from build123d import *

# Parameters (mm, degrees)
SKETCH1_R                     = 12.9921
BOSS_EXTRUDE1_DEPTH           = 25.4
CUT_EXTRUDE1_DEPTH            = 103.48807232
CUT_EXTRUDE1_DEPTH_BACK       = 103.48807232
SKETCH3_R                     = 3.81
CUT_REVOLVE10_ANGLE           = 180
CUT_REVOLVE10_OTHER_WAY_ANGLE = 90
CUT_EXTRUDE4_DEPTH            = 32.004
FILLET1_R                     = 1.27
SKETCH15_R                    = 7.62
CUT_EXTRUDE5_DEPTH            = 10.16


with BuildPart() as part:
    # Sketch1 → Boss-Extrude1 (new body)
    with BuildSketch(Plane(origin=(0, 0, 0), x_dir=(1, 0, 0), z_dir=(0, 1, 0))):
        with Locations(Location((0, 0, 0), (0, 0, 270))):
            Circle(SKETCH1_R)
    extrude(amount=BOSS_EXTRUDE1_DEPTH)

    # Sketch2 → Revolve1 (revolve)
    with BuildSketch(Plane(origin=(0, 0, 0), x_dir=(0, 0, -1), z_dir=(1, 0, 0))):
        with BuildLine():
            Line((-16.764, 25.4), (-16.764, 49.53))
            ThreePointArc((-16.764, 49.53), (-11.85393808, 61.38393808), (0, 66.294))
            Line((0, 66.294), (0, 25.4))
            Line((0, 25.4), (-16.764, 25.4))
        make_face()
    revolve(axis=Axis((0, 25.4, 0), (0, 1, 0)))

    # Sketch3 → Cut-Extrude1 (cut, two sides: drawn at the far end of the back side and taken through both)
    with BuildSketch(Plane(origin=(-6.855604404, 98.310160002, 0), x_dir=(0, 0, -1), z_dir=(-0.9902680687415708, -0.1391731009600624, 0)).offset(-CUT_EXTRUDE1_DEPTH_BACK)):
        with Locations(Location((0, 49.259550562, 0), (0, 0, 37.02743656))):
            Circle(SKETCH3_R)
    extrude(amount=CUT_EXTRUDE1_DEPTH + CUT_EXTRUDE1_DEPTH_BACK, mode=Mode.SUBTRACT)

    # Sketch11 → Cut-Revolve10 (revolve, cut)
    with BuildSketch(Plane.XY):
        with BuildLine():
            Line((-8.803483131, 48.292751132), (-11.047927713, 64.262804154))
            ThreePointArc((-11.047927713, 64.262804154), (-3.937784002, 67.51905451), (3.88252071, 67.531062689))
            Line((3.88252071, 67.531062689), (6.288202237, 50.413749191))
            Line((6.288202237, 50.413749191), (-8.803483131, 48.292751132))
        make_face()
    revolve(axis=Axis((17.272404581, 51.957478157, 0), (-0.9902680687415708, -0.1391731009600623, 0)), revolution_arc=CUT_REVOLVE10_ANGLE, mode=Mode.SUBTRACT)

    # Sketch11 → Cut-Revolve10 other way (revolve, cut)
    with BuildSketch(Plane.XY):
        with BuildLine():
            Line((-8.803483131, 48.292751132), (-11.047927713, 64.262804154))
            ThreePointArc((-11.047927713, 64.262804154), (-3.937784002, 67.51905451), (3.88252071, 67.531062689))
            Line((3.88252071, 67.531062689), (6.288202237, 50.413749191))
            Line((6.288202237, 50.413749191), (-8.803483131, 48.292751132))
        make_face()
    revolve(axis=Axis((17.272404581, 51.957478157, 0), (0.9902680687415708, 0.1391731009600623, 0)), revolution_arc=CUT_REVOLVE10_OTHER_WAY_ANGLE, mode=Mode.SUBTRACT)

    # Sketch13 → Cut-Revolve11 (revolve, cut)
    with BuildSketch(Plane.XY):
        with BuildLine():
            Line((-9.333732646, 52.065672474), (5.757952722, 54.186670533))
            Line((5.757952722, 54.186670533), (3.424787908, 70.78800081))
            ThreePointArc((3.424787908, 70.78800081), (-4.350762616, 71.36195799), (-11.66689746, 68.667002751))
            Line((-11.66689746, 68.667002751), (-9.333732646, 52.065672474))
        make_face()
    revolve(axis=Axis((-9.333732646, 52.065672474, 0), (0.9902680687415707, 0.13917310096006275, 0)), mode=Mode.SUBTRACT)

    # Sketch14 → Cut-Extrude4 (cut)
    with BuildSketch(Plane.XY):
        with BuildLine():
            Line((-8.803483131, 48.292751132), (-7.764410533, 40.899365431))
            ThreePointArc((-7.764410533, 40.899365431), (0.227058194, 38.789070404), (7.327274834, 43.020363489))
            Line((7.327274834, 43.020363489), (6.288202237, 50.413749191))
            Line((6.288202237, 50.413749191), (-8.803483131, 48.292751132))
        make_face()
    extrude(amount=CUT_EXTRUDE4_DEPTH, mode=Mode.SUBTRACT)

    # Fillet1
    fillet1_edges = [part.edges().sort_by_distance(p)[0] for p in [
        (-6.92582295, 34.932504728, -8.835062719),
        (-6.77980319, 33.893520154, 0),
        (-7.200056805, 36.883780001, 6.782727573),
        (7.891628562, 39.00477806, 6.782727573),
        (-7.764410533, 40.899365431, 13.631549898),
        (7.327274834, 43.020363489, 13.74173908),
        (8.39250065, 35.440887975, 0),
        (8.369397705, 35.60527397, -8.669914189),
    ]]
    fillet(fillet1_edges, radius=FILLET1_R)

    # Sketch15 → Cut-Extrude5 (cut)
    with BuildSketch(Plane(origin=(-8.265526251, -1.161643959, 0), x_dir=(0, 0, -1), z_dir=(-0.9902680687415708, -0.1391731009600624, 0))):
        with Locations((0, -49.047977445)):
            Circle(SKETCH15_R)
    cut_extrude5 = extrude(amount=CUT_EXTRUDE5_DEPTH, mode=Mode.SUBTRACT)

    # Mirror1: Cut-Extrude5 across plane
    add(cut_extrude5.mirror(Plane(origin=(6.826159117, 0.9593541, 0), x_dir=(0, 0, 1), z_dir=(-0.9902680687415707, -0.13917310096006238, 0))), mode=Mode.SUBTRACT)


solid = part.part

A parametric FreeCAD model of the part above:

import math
import FreeCAD as App
import Part
import Sketcher
from FreeCAD import Vector
Q = App.Units.Quantity


def edges_at(feature, points):
    """Names of the edges that pass closest to the given points."""
    edges = feature.Shape.Edges
    near = lambda p: min(range(len(edges)), key=lambda i: edges[i].distToShape(Part.Vertex(*p))[0])
    return sorted({f"Edge{near(p) + 1}" for p in points})

doc = App.newDocument("Part")
body = doc.addObject("PartDesign::Body", "Body")

# Sketch on XZ plane
sketch1 = body.newObject("Sketcher::SketchObject", "Sketch")
sketch1.AttachmentSupport = (doc.getObject("XZ_Plane"), [""])
sketch1.MapMode = "FlatFace"
sketch1.addGeometry(Part.Circle(Vector(0, 0, 0), Vector(0, 0, 1), 13), False)
sketch1.addConstraint([
    Sketcher.Constraint("Coincident", 0, 3, -1, 1),
    Sketcher.Constraint("Diameter", 0, Q("1.023 in")),
])
pad1 = body.newObject("PartDesign::Pad", "Pad")
pad1.Profile = sketch1
pad1.Length = Q("1 in")
pad1.Reversed = True

# Sketch on YZ plane
sketch2 = body.newObject("Sketcher::SketchObject", "Sketch001")
sketch2.AttachmentSupport = (doc.getObject("YZ_Plane"), [""])
sketch2.MapMode = "FlatFace"
sketch2.addGeometry([
    Part.LineSegment(Vector(50, 17, 0), Vector(25, 17, 0)),
    Part.LineSegment(Vector(25, 17, 0), Vector(25, 0, 0)),
    Part.LineSegment(Vector(25, 0, 0), Vector(66, 0, 0)),
    Part.ArcOfCircle(Part.Circle(Vector(50, 0, 0), Vector(0, 0, 1), 17), math.radians(0), math.radians(90)),
], False)
sketch2.addConstraint([
    Sketcher.Constraint("Coincident", 0, 2, 1, 1),
    Sketcher.Constraint("Coincident", 1, 2, 2, 1),
    Sketcher.Constraint("Coincident", 2, 2, 3, 1),
    Sketcher.Constraint("Tangent", 3, 2, 0, 1),
    Sketcher.Constraint("Horizontal", 0),
    Sketcher.Constraint("Vertical", 1),
    Sketcher.Constraint("Horizontal", 2),
    Sketcher.Constraint("PointOnObject", 3, 3, -1),
    Sketcher.Constraint("PointOnObject", 1, 2, -1),
    Sketcher.Constraint("Radius", 3, Q("0.66 in")),
    Sketcher.Constraint("DistanceX", -1, 1, 0, 2, Q("1 in")),
    Sketcher.Constraint("DistanceX", 0, 2, 0, 1, Q("0.95 in")),
])
revolution = body.newObject("PartDesign::Revolution", "Revolution")
revolution.Profile = sketch2
revolution.ReferenceAxis = (sketch2, ["H_Axis"])
revolution.Angle = 360

# Sketch on an angled plane
sketch3 = body.newObject("Sketcher::SketchObject", "Sketch002")
sketch3.Placement = App.Placement(Vector(-6.855604, 98.31016, 0), App.Rotation(Vector(0, 0, -1), Vector(0.139173101, -0.990268069, 0), Vector(-0.990268069, -0.139173101, 0), "ZXY"))
sketch3.addGeometry(Part.Circle(Vector(0, 49.3, 0), Vector(0, 0, 1), 3.8), False)
sketch3.addConstraint([
    Sketcher.Constraint("PointOnObject", 0, 3, -2),
    Sketcher.Constraint("Diameter", 0, Q("0.3 in")),
    Sketcher.Constraint("DistanceY", -1, 1, 0, 3, 49.259551),
])
pocket1 = body.newObject("PartDesign::Pocket", "Pocket")
pocket1.Profile = sketch3
pocket1.Type = "ThroughAll"
pocket1.Midplane = True

# Sketch on XY plane
sketch4 = body.newObject("Sketcher::SketchObject", "Sketch003")
sketch4.AttachmentSupport = (doc.getObject("XY_Plane"), [""])
sketch4.MapMode = "FlatFace"
sketch4.addGeometry([
    Part.LineSegment(Vector(-11, 64, 0), Vector(-9, 48, 0)),
    Part.LineSegment(Vector(-9, 48, 0), Vector(6, 50, 0)),
    Part.LineSegment(Vector(6, 50, 0), Vector(4, 68, 0)),
    Part.ArcOfCircle(Part.Circle(Vector(0, 50, 0), Vector(0, 0, 1), 18), math.radians(78), math.radians(127)),
], False)
sketch4.addGeometry(Part.LineSegment(Vector(6, 50, 0), Vector(-9, 48, 0)), True)  # axis
sketch4.addConstraint([
    Sketcher.Constraint("Coincident", 0, 2, 1, 1),
    Sketcher.Constraint("Coincident", 1, 2, 2, 1),
    Sketcher.Constraint("Coincident", 2, 2, 3, 1),
    Sketcher.Constraint("Coincident", 3, 2, 0, 1),
    Sketcher.Constraint("Coincident", 4, 1, 1, 2),
    Sketcher.Constraint("Coincident", 4, 2, 0, 2),
    Sketcher.Constraint("PointOnObject", 3, 3, -2),
    Sketcher.Constraint("Perpendicular", 0, 1),
    Sketcher.Constraint("Perpendicular", 1, 2),
    Sketcher.Constraint("Angle", 0, Q("-82 deg")),
    Sketcher.Constraint("Radius", 3, Q("0.725 in")),
    Sketcher.Constraint("Distance", 1, Q("0.6 in")),
    Sketcher.Constraint("DistanceY", -1, 1, 3, 3, Q("1.95 in")),
    Sketcher.Constraint("Distance", 0, 16.127),
    Sketcher.Constraint("DistanceY", -1, 1, 0, 2, 48.292751),
])
groove = body.newObject("PartDesign::Groove", "Groove")
groove.Profile = sketch4
groove.ReferenceAxis = (sketch4, ["Axis0"])
groove.Angle = 180

# Sketch on XY plane
sketch5 = body.newObject("Sketcher::SketchObject", "Sketch004")
sketch5.AttachmentSupport = (doc.getObject("XY_Plane"), [""])
sketch5.MapMode = "FlatFace"
sketch5.addGeometry([
    Part.LineSegment(Vector(-11, 64, 0), Vector(-9, 48, 0)),
    Part.LineSegment(Vector(-9, 48, 0), Vector(6, 50, 0)),
    Part.LineSegment(Vector(6, 50, 0), Vector(4, 68, 0)),
    Part.ArcOfCircle(Part.Circle(Vector(0, 50, 0), Vector(0, 0, 1), 18), math.radians(78), math.radians(127)),
], False)
sketch5.addGeometry(Part.LineSegment(Vector(-9, 48, 0), Vector(6, 50, 0)), True)  # axis
sketch5.addConstraint([
    Sketcher.Constraint("Coincident", 0, 2, 1, 1),
    Sketcher.Constraint("Coincident", 1, 2, 2, 1),
    Sketcher.Constraint("Coincident", 2, 2, 3, 1),
    Sketcher.Constraint("Coincident", 3, 2, 0, 1),
    Sketcher.Constraint("Coincident", 4, 1, 0, 2),
    Sketcher.Constraint("Coincident", 4, 2, 1, 2),
    Sketcher.Constraint("PointOnObject", 3, 3, -2),
    Sketcher.Constraint("Perpendicular", 0, 1),
    Sketcher.Constraint("Perpendicular", 1, 2),
    Sketcher.Constraint("Angle", 0, Q("-82 deg")),
    Sketcher.Constraint("Radius", 3, Q("0.725 in")),
    Sketcher.Constraint("Distance", 1, Q("0.6 in")),
    Sketcher.Constraint("DistanceY", -1, 1, 3, 3, Q("1.95 in")),
    Sketcher.Constraint("Distance", 0, 16.127),
    Sketcher.Constraint("DistanceY", -1, 1, 0, 2, 48.292751),
])
groove2 = body.newObject("PartDesign::Groove", "Groove001")
groove2.Profile = sketch5
groove2.ReferenceAxis = (sketch5, ["Axis0"])
groove2.Angle = 90

# Sketch on XY plane
sketch6 = body.newObject("Sketcher::SketchObject", "Sketch005")
sketch6.AttachmentSupport = (doc.getObject("XY_Plane"), [""])
sketch6.MapMode = "FlatFace"
sketch6.addGeometry([
    Part.LineSegment(Vector(-9, 52, 0), Vector(6, 54, 0)),
    Part.LineSegment(Vector(6, 54, 0), Vector(3, 71, 0)),
    Part.ArcOfCircle(Part.Circle(Vector(-2, 53, 0), Vector(0, 0, 1), 18), math.radians(74), math.radians(122)),
    Part.LineSegment(Vector(-12, 69, 0), Vector(-9, 52, 0)),
], False)
sketch6.addGeometry(Part.LineSegment(Vector(-9, 52, 0), Vector(6, 54, 0)), True)  # axis
sketch6.addConstraint([
    Sketcher.Constraint("Coincident", 0, 2, 1, 1),
    Sketcher.Constraint("Coincident", 1, 2, 2, 1),
    Sketcher.Constraint("Coincident", 2, 2, 3, 1),
    Sketcher.Constraint("Coincident", 3, 2, 0, 1),
    Sketcher.Constraint("Coincident", 4, 1, 3, 2),
    Sketcher.Constraint("Coincident", 4, 2, 0, 2),
    Sketcher.Constraint("Perpendicular", 0, 1),
    Sketcher.Constraint("Parallel", 1, 3),
    Sketcher.Constraint("Equal", 1, 3),
    Sketcher.Constraint("Angle", 0, Q("8 deg")),
    Sketcher.Constraint("Radius", 2, Q("0.725 in")),
    Sketcher.Constraint("Distance", 0, Q("0.6 in")),
    Sketcher.Constraint("DistanceY", -1, 1, 1, 2, 70.788001),
    Sketcher.Constraint("DistanceY", 2, 3, 0, 2, 1.060499),
    Sketcher.Constraint("DistanceX", 2, 3, -1, 1, 1.78789),
])
groove3 = body.newObject("PartDesign::Groove", "Groove002")
groove3.Profile = sketch6
groove3.ReferenceAxis = (sketch6, ["Axis0"])
groove3.Angle = 360

# Sketch on XY plane
sketch7 = body.newObject("Sketcher::SketchObject", "Sketch006")
sketch7.AttachmentSupport = (doc.getObject("XY_Plane"), [""])
sketch7.MapMode = "FlatFace"
sketch7.addGeometry([
    Part.LineSegment(Vector(-9, 48, 0), Vector(-8, 41, 0)),
    Part.ArcOfCircle(Part.Circle(Vector(-1, 49, 0), Vector(0, 0, 1), 11), math.radians(-128), math.radians(-36)),
    Part.LineSegment(Vector(7, 43, 0), Vector(6, 50, 0)),
    Part.LineSegment(Vector(6, 50, 0), Vector(-9, 48, 0)),
], False)
sketch7.addConstraint([
    Sketcher.Constraint("Coincident", 0, 2, 1, 1),
    Sketcher.Constraint("Coincident", 1, 2, 2, 1),
    Sketcher.Constraint("Coincident", 2, 2, 3, 1),
    Sketcher.Constraint("Coincident", 3, 2, 0, 1),
    Sketcher.Constraint("Parallel", 0, 2),
    Sketcher.Constraint("Perpendicular", 2, 3),
    Sketcher.Constraint("Equal", 0, 2),
    Sketcher.Constraint("Radius", 1, Q("0.42 in")),
    Sketcher.Constraint("Angle", 0, Q("-82 deg")),
    Sketcher.Constraint("Distance", 3, Q("0.6 in")),
    Sketcher.Constraint("DistanceY", 1, 3, 2, 2, 1.060499),
    Sketcher.Constraint("DistanceX", 1, 3, -1, 1, 1.25764),
    Sketcher.Constraint("DistanceY", -1, 1, 1, 3, 49.35325),
])
pocket2 = body.newObject("PartDesign::Pocket", "Pocket001")
pocket2.Profile = sketch7
pocket2.Length = Q("1.26 in")
pocket2.Reversed = True
doc.recompute()

fillet = body.newObject("PartDesign::Fillet", "Fillet")
fillet.Base = (pocket2, edges_at(pocket2, [
    (-6.926, 34.933, -8.835),
    (-6.78, 33.894, 0),
    (-7.2, 36.884, 6.783),
    (7.892, 39.005, 6.783),
    (-7.764, 40.899, 13.632),
    (7.327, 43.02, 13.742),
    (8.393, 35.441, 0),
    (8.369, 35.605, -8.67),
]))
fillet.Radius = Q("0.05 in")

# Sketch on an angled plane
sketch8 = body.newObject("Sketcher::SketchObject", "Sketch007")
sketch8.Placement = App.Placement(Vector(-8.265526, -1.161644, 0), App.Rotation(Vector(0, 0, -1), Vector(0.139173101, -0.990268069, 0), Vector(-0.990268069, -0.139173101, 0), "ZXY"))
sketch8.addGeometry(Part.Circle(Vector(0, -49, 0), Vector(0, 0, 1), 8), False)
sketch8.addConstraint([
    Sketcher.Constraint("PointOnObject", 0, 3, -2),
    Sketcher.Constraint("Diameter", 0, Q("0.6 in")),
    Sketcher.Constraint("DistanceY", 0, 3, -1, 1, 49.047977),
])
pocket3 = body.newObject("PartDesign::Pocket", "Pocket002")
pocket3.Profile = sketch8
pocket3.Length = Q("0.4 in")
pocket3.Reversed = True
doc.recompute()

datumplane = body.newObject("PartDesign::Plane", "DatumPlane")
datumplane.Placement = App.Placement(Vector(6.826159, 0.959354, 0), App.Rotation(Vector(-0.139173101, 0.990268069, 0), Vector(0, 0, -1), Vector(-0.990268069, -0.139173101, 0), "ZXY"))
mirrored = body.newObject("PartDesign::Mirrored", "Mirrored")
mirrored.Originals = [pocket3]
mirrored.MirrorPlane = (datumplane, [""])
body.Tip = mirrored

doc.recompute()
